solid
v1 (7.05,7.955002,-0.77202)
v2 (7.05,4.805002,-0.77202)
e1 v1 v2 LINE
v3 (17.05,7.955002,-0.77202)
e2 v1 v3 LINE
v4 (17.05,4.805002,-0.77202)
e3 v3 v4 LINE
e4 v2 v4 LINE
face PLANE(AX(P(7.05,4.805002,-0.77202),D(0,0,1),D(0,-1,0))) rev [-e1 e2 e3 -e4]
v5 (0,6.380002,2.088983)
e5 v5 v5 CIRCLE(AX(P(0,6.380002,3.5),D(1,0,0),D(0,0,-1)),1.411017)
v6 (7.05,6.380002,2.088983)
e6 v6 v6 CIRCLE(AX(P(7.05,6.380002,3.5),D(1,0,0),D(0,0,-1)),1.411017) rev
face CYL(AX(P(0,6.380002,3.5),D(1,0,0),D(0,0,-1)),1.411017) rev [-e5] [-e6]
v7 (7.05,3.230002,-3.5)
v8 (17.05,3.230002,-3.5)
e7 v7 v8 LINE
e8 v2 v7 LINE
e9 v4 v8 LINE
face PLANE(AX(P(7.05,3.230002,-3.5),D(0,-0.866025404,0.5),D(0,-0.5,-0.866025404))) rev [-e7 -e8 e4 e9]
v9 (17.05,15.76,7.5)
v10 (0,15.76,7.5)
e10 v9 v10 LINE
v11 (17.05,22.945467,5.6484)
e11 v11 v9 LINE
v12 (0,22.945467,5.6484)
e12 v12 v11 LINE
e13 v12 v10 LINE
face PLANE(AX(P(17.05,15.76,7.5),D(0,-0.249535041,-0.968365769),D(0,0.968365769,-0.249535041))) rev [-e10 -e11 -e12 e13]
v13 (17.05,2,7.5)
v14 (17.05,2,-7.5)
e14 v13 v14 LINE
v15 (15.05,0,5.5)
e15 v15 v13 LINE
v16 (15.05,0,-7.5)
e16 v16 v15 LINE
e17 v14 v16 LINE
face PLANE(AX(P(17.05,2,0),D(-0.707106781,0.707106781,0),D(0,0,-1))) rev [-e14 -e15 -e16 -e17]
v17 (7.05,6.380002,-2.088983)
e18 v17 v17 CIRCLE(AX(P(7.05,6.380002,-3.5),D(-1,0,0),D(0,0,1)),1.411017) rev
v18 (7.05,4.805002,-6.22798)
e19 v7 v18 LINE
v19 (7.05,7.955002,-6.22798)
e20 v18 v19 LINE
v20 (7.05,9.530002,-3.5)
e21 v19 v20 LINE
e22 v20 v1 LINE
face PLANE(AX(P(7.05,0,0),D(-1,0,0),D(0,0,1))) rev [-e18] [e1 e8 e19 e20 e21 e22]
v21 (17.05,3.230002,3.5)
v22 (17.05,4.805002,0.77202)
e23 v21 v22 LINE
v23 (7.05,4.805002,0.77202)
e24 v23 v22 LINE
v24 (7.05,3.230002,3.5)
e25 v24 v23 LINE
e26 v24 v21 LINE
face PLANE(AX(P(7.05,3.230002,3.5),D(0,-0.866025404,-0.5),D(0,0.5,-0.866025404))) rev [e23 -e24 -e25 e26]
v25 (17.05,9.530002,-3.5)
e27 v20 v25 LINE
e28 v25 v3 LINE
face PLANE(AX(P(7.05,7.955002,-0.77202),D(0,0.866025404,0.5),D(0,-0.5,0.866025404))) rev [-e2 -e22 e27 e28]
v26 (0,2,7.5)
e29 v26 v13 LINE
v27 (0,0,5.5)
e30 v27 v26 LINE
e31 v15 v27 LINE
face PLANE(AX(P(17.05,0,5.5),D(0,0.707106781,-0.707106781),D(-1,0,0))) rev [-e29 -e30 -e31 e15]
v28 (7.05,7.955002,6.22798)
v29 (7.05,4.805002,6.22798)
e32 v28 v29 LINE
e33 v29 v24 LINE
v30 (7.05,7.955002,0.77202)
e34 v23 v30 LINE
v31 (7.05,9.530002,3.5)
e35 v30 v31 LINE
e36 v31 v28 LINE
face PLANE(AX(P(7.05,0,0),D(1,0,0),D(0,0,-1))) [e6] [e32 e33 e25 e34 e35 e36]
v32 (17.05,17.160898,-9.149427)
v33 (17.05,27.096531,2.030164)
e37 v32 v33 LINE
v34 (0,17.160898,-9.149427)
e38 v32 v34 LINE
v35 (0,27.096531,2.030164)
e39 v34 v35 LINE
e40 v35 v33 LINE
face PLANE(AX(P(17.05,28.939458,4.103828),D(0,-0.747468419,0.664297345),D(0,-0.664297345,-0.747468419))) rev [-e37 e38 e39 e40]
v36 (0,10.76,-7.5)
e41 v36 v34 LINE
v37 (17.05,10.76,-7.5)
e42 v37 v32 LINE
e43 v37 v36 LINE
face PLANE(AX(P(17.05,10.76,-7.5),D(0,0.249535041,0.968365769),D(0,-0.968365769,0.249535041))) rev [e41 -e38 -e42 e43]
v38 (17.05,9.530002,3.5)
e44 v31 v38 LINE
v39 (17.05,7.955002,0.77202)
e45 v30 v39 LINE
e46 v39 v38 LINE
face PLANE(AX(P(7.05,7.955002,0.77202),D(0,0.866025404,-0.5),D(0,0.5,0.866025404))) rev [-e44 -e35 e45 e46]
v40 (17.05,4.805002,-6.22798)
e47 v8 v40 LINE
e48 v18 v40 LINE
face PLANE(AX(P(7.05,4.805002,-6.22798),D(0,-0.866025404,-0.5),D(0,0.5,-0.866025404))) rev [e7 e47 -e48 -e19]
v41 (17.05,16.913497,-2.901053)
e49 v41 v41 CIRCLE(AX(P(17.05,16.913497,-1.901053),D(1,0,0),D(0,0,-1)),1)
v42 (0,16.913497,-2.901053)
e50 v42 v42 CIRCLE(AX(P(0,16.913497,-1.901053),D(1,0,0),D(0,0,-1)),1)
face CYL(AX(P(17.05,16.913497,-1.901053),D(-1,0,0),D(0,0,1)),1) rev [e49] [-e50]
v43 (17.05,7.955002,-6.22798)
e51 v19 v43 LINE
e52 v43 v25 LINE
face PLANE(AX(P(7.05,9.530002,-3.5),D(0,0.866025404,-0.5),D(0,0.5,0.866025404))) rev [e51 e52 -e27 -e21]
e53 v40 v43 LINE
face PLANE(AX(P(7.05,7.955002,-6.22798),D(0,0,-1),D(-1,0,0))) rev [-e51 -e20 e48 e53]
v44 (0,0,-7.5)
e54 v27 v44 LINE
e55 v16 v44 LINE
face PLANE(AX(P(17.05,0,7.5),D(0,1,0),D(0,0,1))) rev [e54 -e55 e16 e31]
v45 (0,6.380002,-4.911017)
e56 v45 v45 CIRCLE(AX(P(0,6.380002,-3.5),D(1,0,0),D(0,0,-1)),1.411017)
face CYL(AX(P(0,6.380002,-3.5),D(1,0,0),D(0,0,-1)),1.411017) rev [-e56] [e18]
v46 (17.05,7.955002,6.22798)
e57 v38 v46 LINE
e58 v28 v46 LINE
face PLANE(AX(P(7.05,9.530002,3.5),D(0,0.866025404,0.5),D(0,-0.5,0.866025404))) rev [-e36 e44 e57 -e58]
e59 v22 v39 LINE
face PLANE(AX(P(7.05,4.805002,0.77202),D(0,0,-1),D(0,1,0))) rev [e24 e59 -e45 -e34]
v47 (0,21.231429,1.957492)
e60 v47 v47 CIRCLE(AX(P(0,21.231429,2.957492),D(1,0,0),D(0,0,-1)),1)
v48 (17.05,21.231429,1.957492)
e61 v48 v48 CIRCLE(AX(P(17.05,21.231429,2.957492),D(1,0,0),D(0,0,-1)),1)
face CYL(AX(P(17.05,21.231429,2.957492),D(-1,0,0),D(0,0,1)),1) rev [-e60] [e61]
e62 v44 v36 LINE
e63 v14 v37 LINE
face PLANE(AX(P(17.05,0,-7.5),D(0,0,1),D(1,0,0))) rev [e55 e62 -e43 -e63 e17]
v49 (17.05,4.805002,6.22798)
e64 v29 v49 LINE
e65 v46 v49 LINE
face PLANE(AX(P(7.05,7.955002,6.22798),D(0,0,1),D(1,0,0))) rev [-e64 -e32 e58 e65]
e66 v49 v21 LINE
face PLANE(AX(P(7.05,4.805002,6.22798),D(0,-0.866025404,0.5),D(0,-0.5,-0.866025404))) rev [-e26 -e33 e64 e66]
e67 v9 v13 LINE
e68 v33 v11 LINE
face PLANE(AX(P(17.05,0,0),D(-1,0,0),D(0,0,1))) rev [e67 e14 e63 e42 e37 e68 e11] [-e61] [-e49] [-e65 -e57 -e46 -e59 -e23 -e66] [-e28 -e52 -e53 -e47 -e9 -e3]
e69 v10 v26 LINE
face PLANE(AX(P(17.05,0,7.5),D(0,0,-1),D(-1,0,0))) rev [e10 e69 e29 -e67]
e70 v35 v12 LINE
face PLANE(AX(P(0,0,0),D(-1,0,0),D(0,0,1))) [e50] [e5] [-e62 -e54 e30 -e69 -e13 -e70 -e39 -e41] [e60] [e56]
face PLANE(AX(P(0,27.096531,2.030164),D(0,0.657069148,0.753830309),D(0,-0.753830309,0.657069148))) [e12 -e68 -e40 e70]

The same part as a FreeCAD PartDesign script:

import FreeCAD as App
import Part
import Sketcher
from FreeCAD import Vector
Q = App.Units.Quantity


def edges_at(feature, points):
    """Names of the edges that pass closest to the given points."""
    edges = feature.Shape.Edges
    near = lambda p: min(range(len(edges)), key=lambda i: edges[i].distToShape(Part.Vertex(*p))[0])
    return sorted({f"Edge{near(p) + 1}" for p in points})

doc = App.newDocument("Part")
body = doc.addObject("PartDesign::Body", "Body")

sketch1 = body.newObject("Sketcher::SketchObject", "Sketch")
sketch1.AttachmentSupport = (doc.getObject("YZ_Plane"), [""])
sketch1.MapMode = "FlatFace"
sketch1.addGeometry(Part.LineSegment(Vector(0, 7.5, 0), Vector(0, -7.5, 0)), False)
sketch1.addGeometry(Part.LineSegment(Vector(0, -7.5, 0), Vector(10.8, -7.5, 0)), False)
sketch1.addGeometry(Part.LineSegment(Vector(10.8, -7.5, 0), Vector(17.2, -9.1, 0)), False)
sketch1.addGeometry(Part.LineSegment(Vector(17.2, -9.1, 0), Vector(28.9, 4.1, 0)), False)
sketch1.addGeometry(Part.LineSegment(Vector(28.9, 4.1, 0), Vector(15.8, 7.5, 0)), False)
sketch1.addGeometry(Part.LineSegment(Vector(15.8, 7.5, 0), Vector(0, 7.5, 0)), False)
sketch1.addGeometry(Part.Circle(Vector(16.9, -1.9, 0), Vector(0, 0, 1), 1), False)
sketch1.addGeometry(Part.Circle(Vector(21.2, 3, 0), Vector(0, 0, 1), 1), False)
sketch1.addConstraint(Sketcher.Constraint("Coincident", 0, 2, 1, 1))
sketch1.addConstraint(Sketcher.Constraint("Coincident", 1, 2, 2, 1))
sketch1.addConstraint(Sketcher.Constraint("Coincident", 2, 2, 3, 1))
sketch1.addConstraint(Sketcher.Constraint("Coincident", 3, 2, 4, 1))
sketch1.addConstraint(Sketcher.Constraint("Coincident", 4, 2, 5, 1))
sketch1.addConstraint(Sketcher.Constraint("Coincident", 5, 2, 0, 1))
sketch1.addConstraint(Sketcher.Constraint("Vertical", 0))
sketch1.addConstraint(Sketcher.Constraint("Horizontal", 1))
sketch1.addConstraint(Sketcher.Constraint("Horizontal", 5))
sketch1.addConstraint(Sketcher.Constraint("Equal", 6, 7))
sketch1.addConstraint(Sketcher.Constraint("Symmetric", 0, 2, 5, 2, -1, 1))
sketch1.addConstraint(Sketcher.Constraint("Parallel", 2, 4))
sketch1.addConstraint(Sketcher.Constraint("Diameter", 6, Q("2 mm")))
sketch1.addConstraint(Sketcher.Constraint("DistanceY", 0, 2, 0, 1, Q("15 mm")))
sketch1.addConstraint(Sketcher.Constraint("DistanceX", 1, 2, 4, 2, Q("5 mm")))
sketch1.addConstraint(Sketcher.Constraint("DistanceX", 1, 1, 1, 2, Q("10.76 mm")))
sketch1.addConstraint(Sketcher.Constraint("Angle", 2, Q("-14.45 deg")))
sketch1.addConstraint(Sketcher.Constraint("Distance", 2, Q("6.61 mm")))
sketch1.addConstraint(Sketcher.Constraint("Distance", 4, Q("13.61 mm")))
sketch1.addConstraint(Sketcher.Constraint("DistanceX", 6, 3, 2, 2, Q("0.247401 mm")))
sketch1.addConstraint(Sketcher.Constraint("DistanceX", -1, 1, 7, 3, Q("21.231429 mm")))
sketch1.addConstraint(Sketcher.Constraint("DistanceY", -1, 1, 7, 3, Q("2.957492 mm")))
sketch1.addConstraint(Sketcher.Constraint("DistanceY", 6, 3, 3, 2, Q("6.004881 mm")))
pad1 = body.newObject("PartDesign::Pad", "Pad")
pad1.Profile = sketch1
pad1.Length = 17.05
doc.recompute()

chamfer = body.newObject("PartDesign::Chamfer", "Chamfer")
chamfer.Base = (pad1, edges_at(pad1, [(8.525, 0, 7.5), (17.05, 0, 0)]))
chamfer.Size = 2

sketch2 = body.newObject("Sketcher::SketchObject", "Sketch001")
sketch2.AttachmentSupport = (doc.getObject("YZ_Plane"), [""])
sketch2.MapMode = "FlatFace"
sketch2.AttachmentOffset = App.Placement(Vector(0, 0, 17.05), App.Rotation())
sketch2.addGeometry(Part.Circle(Vector(6.4, 3.5, 0), Vector(0, 0, 1), 1.4), False)
sketch2.addGeometry(Part.Circle(Vector(6.4, -3.5, 0), Vector(0, 0, 1), 1.4), False)
sketch2.addConstraint(Sketcher.Constraint("Equal", 0, 1))
sketch2.addConstraint(Sketcher.Constraint("Symmetric", 0, 3, 1, 3, -1))
sketch2.addConstraint(Sketcher.Constraint("DistanceY", 1, 3, 0, 3, Q("7 mm")))
sketch2.addConstraint(Sketcher.Constraint("DistanceX", -1, 1, 0, 3, Q("6.380002 mm")))
sketch2.addConstraint(Sketcher.Constraint("Diameter", 0, Q("2.822033 mm")))
pocket1 = body.newObject("PartDesign::Pocket", "Pocket")
pocket1.Profile = sketch2
pocket1.Type = "ThroughAll"

sketch3 = body.newObject("Sketcher::SketchObject", "Sketch002")
sketch3.AttachmentSupport = (doc.getObject("YZ_Plane"), [""])
sketch3.MapMode = "FlatFace"
sketch3.AttachmentOffset = App.Placement(Vector(0, 0, 17.05), App.Rotation())
sketch3.addGeometry(Part.LineSegment(Vector(27.1, 2, 0), Vector(28.9, 4.1, 0)), False)
sketch3.addGeometry(Part.LineSegment(Vector(28.9, 4.1, 0), Vector(22.9, 5.6, 0)), False)
sketch3.addGeometry(Part.LineSegment(Vector(22.9, 5.6, 0), Vector(27.1, 2, 0)), False)
sketch3.addConstraint(Sketcher.Constraint("Coincident", 0, 2, 1, 1))
sketch3.addConstraint(Sketcher.Constraint("Coincident", 1, 2, 2, 1))
sketch3.addConstraint(Sketcher.Constraint("Coincident", 2, 2, 0, 1))
sketch3.addConstraint(Sketcher.Constraint("Angle", 1, Q("165.55 deg")))
sketch3.addConstraint(Sketcher.Constraint("Distance", 1, Q("6.1898 mm")))
sketch3.addConstraint(Sketcher.Constraint("DistanceY", -1, 1, 1, 2, Q("5.6484 mm")))
sketch3.addConstraint(Sketcher.Constraint("Distance", 0, Q("2.77425 mm")))
sketch3.addConstraint(Sketcher.Constraint("Distance", 2, Q("5.506629 mm")))
sketch3.addConstraint(Sketcher.Constraint("DistanceX", -1, 1, 0, 2, Q("28.939458 mm")))
pocket2 = body.newObject("PartDesign::Pocket", "Pocket001")
pocket2.Profile = sketch3
pocket2.Type = "ThroughAll"

sketch4 = body.newObject("Sketcher::SketchObject", "Sketch003")
sketch4.AttachmentSupport = (doc.getObject("YZ_Plane"), [""])
sketch4.MapMode = "FlatFace"
sketch4.AttachmentOffset = App.Placement(Vector(0, 0, 17.05), App.Rotation())
sketch4.addGeometry(Part.LineSegment(Vector(3.2, 3.5, 0), Vector(4.8, 0.8, 0)), False)
sketch4.addGeometry(Part.LineSegment(Vector(4.8, 0.8, 0), Vector(8, 0.8, 0)), False)
sketch4.addGeometry(Part.LineSegment(Vector(8, 0.8, 0), Vector(9.5, 3.5, 0)), False)
sketch4.addGeometry(Part.LineSegment(Vector(9.5, 3.5, 0), Vector(8, 6.2, 0)), False)
sketch4.addGeometry(Part.LineSegment(Vector(8, 6.2, 0), Vector(4.8, 6.2, 0)), False)
sketch4.addGeometry(Part.LineSegment(Vector(4.8, 6.2, 0), Vector(3.2, 3.5, 0)), False)
sketch4.addGeometry(Part.LineSegment(Vector(3.2, -3.5, 0), Vector(4.8, -6.2, 0)), False)
sketch4.addGeometry(Part.LineSegment(Vector(4.8, -6.2, 0), Vector(8, -6.2, 0)), False)
sketch4.addGeometry(Part.LineSegment(Vector(8, -6.2, 0), Vector(9.5, -3.5, 0)), False)
sketch4.addGeometry(Part.LineSegment(Vector(9.5, -3.5, 0), Vector(8, -0.8, 0)), False)
sketch4.addGeometry(Part.LineSegment(Vector(8, -0.8, 0), Vector(4.8, -0.8, 0)), False)
sketch4.addGeometry(Part.LineSegment(Vector(4.8, -0.8, 0), Vector(3.2, -3.5, 0)), False)
sketch4.addConstraint(Sketcher.Constraint("Coincident", 0, 2, 1, 1))
sketch4.addConstraint(Sketcher.Constraint("Coincident", 1, 2, 2, 1))
sketch4.addConstraint(Sketcher.Constraint("Coincident", 2, 2, 3, 1))
sketch4.addConstraint(Sketcher.Constraint("Coincident", 3, 2, 4, 1))
sketch4.addConstraint(Sketcher.Constraint("Coincident", 4, 2, 5, 1))
sketch4.addConstraint(Sketcher.Constraint("Coincident", 5, 2, 0, 1))
sketch4.addConstraint(Sketcher.Constraint("Coincident", 6, 2, 7, 1))
sketch4.addConstraint(Sketcher.Constraint("Coincident", 7, 2, 8, 1))
sketch4.addConstraint(Sketcher.Constraint("Coincident", 8, 2, 9, 1))
sketch4.addConstraint(Sketcher.Constraint("Coincident", 9, 2, 10, 1))
sketch4.addConstraint(Sketcher.Constraint("Coincident", 10, 2, 11, 1))
sketch4.addConstraint(Sketcher.Constraint("Coincident", 11, 2, 6, 1))
sketch4.addConstraint(Sketcher.Constraint("Horizontal", 1))
sketch4.addConstraint(Sketcher.Constraint("Horizontal", 4))
sketch4.addConstraint(Sketcher.Constraint("Horizontal", 7))
sketch4.addConstraint(Sketcher.Constraint("Horizontal", 10))
sketch4.addConstraint(Sketcher.Constraint("Symmetric", 4, 2, 6, 2, -1))
sketch4.addConstraint(Sketcher.Constraint("Symmetric", 2, 2, 8, 2, -1))
sketch4.addConstraint(Sketcher.Constraint("Symmetric", 1, 2, 9, 2, -1))
sketch4.addConstraint(Sketcher.Constraint("Symmetric", 5, 2, 11, 2, -1))
sketch4.addConstraint(Sketcher.Constraint("Parallel", 0, 3))
sketch4.addConstraint(Sketcher.Constraint("Parallel", 2, 5))
sketch4.addConstraint(Sketcher.Constraint("Parallel", 3, 6))
sketch4.addConstraint(Sketcher.Constraint("Parallel", 5, 8))
sketch4.addConstraint(Sketcher.Constraint("Parallel", 8, 11))
sketch4.addConstraint(Sketcher.Constraint("Horizontal", 2, 2, 5, 2))
sketch4.addConstraint(Sketcher.Constraint("Vertical", 1, 2, 3, 2))
sketch4.addConstraint(Sketcher.Constraint("Angle", 0, Q("-60 deg")))
sketch4.addConstraint(Sketcher.Constraint("DistanceY", 6, 2, 0, 2, Q("7 mm")))
sketch4.addConstraint(Sketcher.Constraint("DistanceX", 1, 1, 1, 2, Q("3.15 mm")))
sketch4.addConstraint(Sketcher.Constraint("DistanceX", 5, 2, 2, 2, Q("6.3 mm")))
sketch4.addConstraint(Sketcher.Constraint("DistanceX", -1, 1, 2, 2, Q("9.530002 mm")))
pocket3 = body.newObject("PartDesign::Pocket", "Pocket002")
pocket3.Profile = sketch4
pocket3.Length = 10

doc.recompute()
